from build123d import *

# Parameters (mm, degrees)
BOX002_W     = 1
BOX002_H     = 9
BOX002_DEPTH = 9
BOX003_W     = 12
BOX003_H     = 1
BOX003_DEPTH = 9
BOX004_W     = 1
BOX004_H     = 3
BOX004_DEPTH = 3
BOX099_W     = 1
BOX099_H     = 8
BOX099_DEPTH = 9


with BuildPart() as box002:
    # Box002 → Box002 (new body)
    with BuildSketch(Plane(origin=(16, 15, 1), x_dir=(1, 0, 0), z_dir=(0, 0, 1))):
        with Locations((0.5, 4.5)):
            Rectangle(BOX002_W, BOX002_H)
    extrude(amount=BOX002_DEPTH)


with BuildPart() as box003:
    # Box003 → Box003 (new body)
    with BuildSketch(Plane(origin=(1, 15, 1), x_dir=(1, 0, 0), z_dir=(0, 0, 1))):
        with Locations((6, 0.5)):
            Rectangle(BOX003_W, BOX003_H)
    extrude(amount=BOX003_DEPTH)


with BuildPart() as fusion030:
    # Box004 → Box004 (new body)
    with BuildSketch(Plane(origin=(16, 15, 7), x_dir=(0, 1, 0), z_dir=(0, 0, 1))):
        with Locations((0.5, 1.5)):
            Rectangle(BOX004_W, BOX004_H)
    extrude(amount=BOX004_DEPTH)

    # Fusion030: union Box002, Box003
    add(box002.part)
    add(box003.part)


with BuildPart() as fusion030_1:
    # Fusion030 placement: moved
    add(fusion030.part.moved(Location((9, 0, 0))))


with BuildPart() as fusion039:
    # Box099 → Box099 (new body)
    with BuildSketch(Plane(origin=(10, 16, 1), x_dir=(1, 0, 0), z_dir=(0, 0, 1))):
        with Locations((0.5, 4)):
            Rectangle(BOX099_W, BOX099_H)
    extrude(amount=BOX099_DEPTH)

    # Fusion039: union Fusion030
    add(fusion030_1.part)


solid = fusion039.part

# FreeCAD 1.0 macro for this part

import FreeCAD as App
import Part
import Sketcher
from FreeCAD import Vector
Q = App.Units.Quantity


def add_polygon(sketch, points):
    """Adds a closed chain of lines whose ends are joined by coincident constraints."""
    first, n = sketch.GeometryCount, len(points)
    for a, b in zip(points, points[1:] + points[:1]):
        sketch.addGeometry(Part.LineSegment(App.Vector(*a, 0), App.Vector(*b, 0)), False)
    for i in range(n):
        sketch.addConstraint(Sketcher.Constraint("Coincident", first + i, 2, first + (i + 1) % n, 1))

doc = App.newDocument("Part")
body = doc.addObject("PartDesign::Body", "Body")

# Sketch on XY plane
sketch1 = body.newObject("Sketcher::SketchObject", "Sketch")
sketch1.AttachmentSupport = (doc.getObject("XY_Plane"), [""])
sketch1.MapMode = "FlatFace"
sketch1.AttachmentOffset = App.Placement(Vector(0, 0, 1), App.Rotation())
add_polygon(sketch1, [(16, 24), (16, 15), (17, 15), (17, 24)])  # lines 0-3
sketch1.addConstraint([
    Sketcher.Constraint("Vertical", 0),
    Sketcher.Constraint("Horizontal", 1),
    Sketcher.Constraint("Vertical", 2),
    Sketcher.Constraint("Horizontal", 3),
    Sketcher.Constraint("DistanceX", 1, 1, 1, 2, Q("1 mm")),
    Sketcher.Constraint("DistanceY", 0, 2, 0, 1, Q("9 mm")),
    Sketcher.Constraint("DistanceX", -1, 1, 0, 2, Q("16 mm")),
    Sketcher.Constraint("DistanceY", -1, 1, 0, 2, Q("15 mm")),
])
pad1 = body.newObject("PartDesign::Pad", "Pad")
pad1.Profile = sketch1
pad1.Length = 9
body2 = doc.addObject("PartDesign::Body", "Body001")

# Sketch on XY plane
sketch2 = body2.newObject("Sketcher::SketchObject", "Sketch001")
sketch2.AttachmentSupport = (doc.getObject("XY_Plane001"), [""])
sketch2.MapMode = "FlatFace"
sketch2.AttachmentOffset = App.Placement(Vector(0, 0, 1), App.Rotation())
add_polygon(sketch2, [(1, 16), (1, 15), (13, 15), (13, 16)])  # lines 0-3
sketch2.addConstraint([
    Sketcher.Constraint("Vertical", 0),
    Sketcher.Constraint("Horizontal", 1),
    Sketcher.Constraint("Vertical", 2),
    Sketcher.Constraint("Horizontal", 3),
    Sketcher.Constraint("DistanceX", 1, 1, 1, 2, Q("12 mm")),
    Sketcher.Constraint("DistanceY", 0, 2, 0, 1, Q("1 mm")),
    Sketcher.Constraint("DistanceX", -1, 1, 0, 2, Q("1 mm")),
    Sketcher.Constraint("DistanceY", -1, 1, 0, 2, Q("15 mm")),
])
pad2 = body2.newObject("PartDesign::Pad", "Pad001")
pad2.Profile = sketch2
pad2.Length = 9
body3 = doc.addObject("PartDesign::Body", "Body002")

# Sketch on XY plane
sketch3 = body3.newObject("Sketcher::SketchObject", "Sketch002")
sketch3.AttachmentSupport = (doc.getObject("XY_Plane002"), [""])
sketch3.MapMode = "FlatFace"
sketch3.AttachmentOffset = App.Placement(Vector(0, 0, 7), App.Rotation())
add_polygon(sketch3, [(13, 15), (16, 15), (16, 16), (13, 16)])  # lines 0-3
sketch3.addConstraint([
    Sketcher.Constraint("Horizontal", 0),
    Sketcher.Constraint("Vertical", 1),
    Sketcher.Constraint("Horizontal", 2),
    Sketcher.Constraint("Vertical", 3),
    Sketcher.Constraint("DistanceX", 0, 1, 0, 2, Q("3 mm")),
    Sketcher.Constraint("DistanceY", 1, 1, 1, 2, Q("1 mm")),
    Sketcher.Constraint("DistanceX", -1, 1, 0, 2, Q("16 mm")),
    Sketcher.Constraint("DistanceY", -1, 1, 0, 2, Q("15 mm")),
])
pad3 = body3.newObject("PartDesign::Pad", "Pad002")
pad3.Profile = sketch3
pad3.Length = 3
doc.recompute()

boolean = body3.newObject("PartDesign::Boolean", "Boolean")
boolean.Type = "Fuse"
boolean.addObjects([body])
doc.recompute()

boolean2 = body3.newObject("PartDesign::Boolean", "Boolean001")
boolean2.Type = "Fuse"
boolean2.addObjects([body2])
body4 = doc.addObject("PartDesign::Body", "Body003")
doc.recompute()

body3.Placement = App.Placement(Vector(9, 0, 0), App.Rotation(Vector(0, 0, 1), 0))
boolean3 = body4.newObject("PartDesign::Boolean", "Boolean002")
boolean3.Type = "Fuse"
boolean3.addObjects([body3])
body5 = doc.addObject("PartDesign::Body", "Body004")

# Sketch on XY plane
sketch4 = body5.newObject("Sketcher::SketchObject", "Sketch003")
sketch4.AttachmentSupport = (doc.getObject("XY_Plane004"), [""])
sketch4.MapMode = "FlatFace"
sketch4.AttachmentOffset = App.Placement(Vector(0, 0, 1), App.Rotation())
add_polygon(sketch4, [(10, 24), (10, 16), (11, 16), (11, 24)])  # lines 0-3
sketch4.addConstraint([
    Sketcher.Constraint("Vertical", 0),
    Sketcher.Constraint("Horizontal", 1),
    Sketcher.Constraint("Vertical", 2),
    Sketcher.Constraint("Horizontal", 3),
    Sketcher.Constraint("DistanceX", 1, 1, 1, 2, Q("1 mm")),
    Sketcher.Constraint("DistanceY", 0, 2, 0, 1, Q("8 mm")),
    Sketcher.Constraint("DistanceX", -1, 1, 0, 2, Q("10 mm")),
    Sketcher.Constraint("DistanceY", -1, 1, 0, 2, Q("16 mm")),
])
pad4 = body5.newObject("PartDesign::Pad", "Pad003")
pad4.Profile = sketch4
pad4.Length = 9
doc.recompute()

boolean4 = body5.newObject("PartDesign::Boolean", "Boolean003")
boolean4.Type = "Fuse"
boolean4.addObjects([body4])

doc.recompute()
